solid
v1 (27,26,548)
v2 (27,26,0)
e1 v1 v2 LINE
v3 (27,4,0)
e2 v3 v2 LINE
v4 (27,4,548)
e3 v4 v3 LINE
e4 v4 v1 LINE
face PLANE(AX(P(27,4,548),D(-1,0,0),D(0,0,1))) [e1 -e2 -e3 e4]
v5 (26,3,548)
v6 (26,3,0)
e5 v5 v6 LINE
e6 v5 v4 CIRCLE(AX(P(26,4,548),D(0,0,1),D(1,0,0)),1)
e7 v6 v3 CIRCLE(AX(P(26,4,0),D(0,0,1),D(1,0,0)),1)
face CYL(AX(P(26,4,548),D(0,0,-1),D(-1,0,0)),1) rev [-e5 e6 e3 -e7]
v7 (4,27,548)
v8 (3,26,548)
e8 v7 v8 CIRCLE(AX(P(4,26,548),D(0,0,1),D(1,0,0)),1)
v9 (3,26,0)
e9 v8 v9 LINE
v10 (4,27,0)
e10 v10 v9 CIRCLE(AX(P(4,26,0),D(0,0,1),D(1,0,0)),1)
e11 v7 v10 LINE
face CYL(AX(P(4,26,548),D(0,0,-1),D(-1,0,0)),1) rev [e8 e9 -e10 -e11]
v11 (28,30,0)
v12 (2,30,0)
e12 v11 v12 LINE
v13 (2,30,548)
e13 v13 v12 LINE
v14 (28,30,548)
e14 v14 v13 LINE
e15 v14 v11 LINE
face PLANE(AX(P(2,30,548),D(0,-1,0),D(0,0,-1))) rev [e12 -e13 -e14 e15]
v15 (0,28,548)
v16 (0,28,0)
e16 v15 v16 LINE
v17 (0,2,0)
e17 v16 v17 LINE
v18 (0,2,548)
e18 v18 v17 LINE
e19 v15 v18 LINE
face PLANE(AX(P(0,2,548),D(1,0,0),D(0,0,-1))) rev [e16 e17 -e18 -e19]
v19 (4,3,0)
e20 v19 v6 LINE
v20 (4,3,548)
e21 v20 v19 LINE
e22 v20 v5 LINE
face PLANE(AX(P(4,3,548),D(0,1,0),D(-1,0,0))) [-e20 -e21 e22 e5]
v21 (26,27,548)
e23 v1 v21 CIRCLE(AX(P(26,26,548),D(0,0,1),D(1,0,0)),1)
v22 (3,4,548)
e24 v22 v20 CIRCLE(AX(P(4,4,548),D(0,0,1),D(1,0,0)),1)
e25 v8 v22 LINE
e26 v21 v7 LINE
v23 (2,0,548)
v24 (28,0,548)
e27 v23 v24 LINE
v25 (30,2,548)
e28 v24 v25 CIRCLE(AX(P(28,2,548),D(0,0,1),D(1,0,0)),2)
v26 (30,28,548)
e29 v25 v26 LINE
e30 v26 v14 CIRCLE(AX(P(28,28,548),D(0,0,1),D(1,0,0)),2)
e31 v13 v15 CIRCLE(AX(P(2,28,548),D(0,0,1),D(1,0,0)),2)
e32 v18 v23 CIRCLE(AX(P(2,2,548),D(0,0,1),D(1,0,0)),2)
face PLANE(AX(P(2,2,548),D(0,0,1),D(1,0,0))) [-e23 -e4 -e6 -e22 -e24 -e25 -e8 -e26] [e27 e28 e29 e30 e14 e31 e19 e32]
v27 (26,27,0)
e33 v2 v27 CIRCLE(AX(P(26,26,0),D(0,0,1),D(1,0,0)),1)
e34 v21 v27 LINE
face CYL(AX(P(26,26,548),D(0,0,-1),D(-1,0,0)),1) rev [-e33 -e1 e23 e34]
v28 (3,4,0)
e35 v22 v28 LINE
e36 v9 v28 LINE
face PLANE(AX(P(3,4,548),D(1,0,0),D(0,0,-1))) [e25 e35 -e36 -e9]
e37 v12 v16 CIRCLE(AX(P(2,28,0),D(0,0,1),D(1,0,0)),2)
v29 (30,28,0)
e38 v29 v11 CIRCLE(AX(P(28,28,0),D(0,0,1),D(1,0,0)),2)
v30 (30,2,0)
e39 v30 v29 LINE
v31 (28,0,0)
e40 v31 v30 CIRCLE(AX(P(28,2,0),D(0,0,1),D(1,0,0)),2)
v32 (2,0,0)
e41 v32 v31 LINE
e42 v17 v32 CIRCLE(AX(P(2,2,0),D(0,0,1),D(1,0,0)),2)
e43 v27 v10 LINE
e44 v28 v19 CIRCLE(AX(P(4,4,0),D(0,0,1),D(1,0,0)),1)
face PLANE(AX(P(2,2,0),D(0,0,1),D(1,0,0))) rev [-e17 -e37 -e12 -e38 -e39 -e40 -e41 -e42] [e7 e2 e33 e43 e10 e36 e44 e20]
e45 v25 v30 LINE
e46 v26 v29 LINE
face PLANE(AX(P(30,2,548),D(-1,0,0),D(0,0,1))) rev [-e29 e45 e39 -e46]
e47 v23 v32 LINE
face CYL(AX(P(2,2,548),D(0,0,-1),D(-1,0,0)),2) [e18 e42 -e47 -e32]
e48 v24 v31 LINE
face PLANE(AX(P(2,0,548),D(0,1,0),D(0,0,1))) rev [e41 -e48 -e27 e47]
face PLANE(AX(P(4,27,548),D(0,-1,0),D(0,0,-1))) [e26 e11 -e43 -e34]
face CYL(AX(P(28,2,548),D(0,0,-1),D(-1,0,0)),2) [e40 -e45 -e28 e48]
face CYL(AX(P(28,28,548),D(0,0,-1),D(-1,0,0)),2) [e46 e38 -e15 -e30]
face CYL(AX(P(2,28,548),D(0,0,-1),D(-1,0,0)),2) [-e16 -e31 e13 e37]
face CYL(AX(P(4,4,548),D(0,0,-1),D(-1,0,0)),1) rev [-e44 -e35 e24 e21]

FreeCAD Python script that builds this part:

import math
import FreeCAD as App
import Part
import Sketcher
from FreeCAD import Vector
Q = App.Units.Quantity

doc = App.newDocument("Part")
body = doc.addObject("PartDesign::Body", "Body")

# Sketch on XY plane
sketch1 = body.newObject("Sketcher::SketchObject", "Sketch")
sketch1.AttachmentSupport = (doc.getObject("XY_Plane"), [""])
sketch1.MapMode = "FlatFace"
sketch1.addGeometry([
    Part.LineSegment(Vector(2, 0, 0), Vector(28, 0, 0)),  # 0
    Part.ArcOfCircle(Part.Circle(Vector(28, 2, 0), Vector(0, 0, 1), 2), math.radians(-90), math.radians(0)),  # 1
    Part.LineSegment(Vector(30, 2, 0), Vector(30, 28, 0)),  # 2
    Part.ArcOfCircle(Part.Circle(Vector(28, 28, 0), Vector(0, 0, 1), 2), math.radians(0), math.radians(90)),  # 3
    Part.LineSegment(Vector(28, 30, 0), Vector(2, 30, 0)),  # 4
    Part.ArcOfCircle(Part.Circle(Vector(2, 28, 0), Vector(0, 0, 1), 2), math.radians(90), math.radians(180)),  # 5
    Part.LineSegment(Vector(0, 28, 0), Vector(0, 2, 0)),  # 6
    Part.ArcOfCircle(Part.Circle(Vector(2, 2, 0), Vector(0, 0, 1), 2), math.radians(-180), math.radians(-90)),  # 7
    Part.LineSegment(Vector(26, 3, 0), Vector(4, 3, 0)),  # 8
    Part.ArcOfCircle(Part.Circle(Vector(4, 4, 0), Vector(0, 0, 1), 1), math.radians(-180), math.radians(-90)),  # 9
    Part.LineSegment(Vector(3, 4, 0), Vector(3, 26, 0)),  # 10
    Part.ArcOfCircle(Part.Circle(Vector(4, 26, 0), Vector(0, 0, 1), 1), math.radians(90), math.radians(180)),  # 11
    Part.LineSegment(Vector(4, 27, 0), Vector(26, 27, 0)),  # 12
    Part.ArcOfCircle(Part.Circle(Vector(26, 26, 0), Vector(0, 0, 1), 1), math.radians(0), math.radians(90)),  # 13
    Part.LineSegment(Vector(27, 26, 0), Vector(27, 4, 0)),  # 14
    Part.ArcOfCircle(Part.Circle(Vector(26, 4, 0), Vector(0, 0, 1), 1), math.radians(-90), math.radians(0)),  # 15
], False)
sketch1.addConstraint([
    Sketcher.Constraint("Tangent", 0, 2, 1, 1),
    Sketcher.Constraint("Tangent", 1, 2, 2, 1),
    Sketcher.Constraint("Tangent", 2, 2, 3, 1),
    Sketcher.Constraint("Tangent", 3, 2, 4, 1),
    Sketcher.Constraint("Tangent", 4, 2, 5, 1),
    Sketcher.Constraint("Tangent", 5, 2, 6, 1),
    Sketcher.Constraint("Tangent", 6, 2, 7, 1),
    Sketcher.Constraint("Tangent", 7, 2, 0, 1),
    Sketcher.Constraint("Tangent", 8, 2, 9, 2),
    Sketcher.Constraint("Tangent", 9, 1, 10, 1),
    Sketcher.Constraint("Tangent", 10, 2, 11, 2),
    Sketcher.Constraint("Tangent", 11, 1, 12, 1),
    Sketcher.Constraint("Tangent", 12, 2, 13, 2),
    Sketcher.Constraint("Tangent", 13, 1, 14, 1),
    Sketcher.Constraint("Tangent", 14, 2, 15, 2),
    Sketcher.Constraint("Tangent", 15, 1, 8, 1),
    Sketcher.Constraint("Horizontal", 0),
    Sketcher.Constraint("Vertical", 2),
    Sketcher.Constraint("Horizontal", 4),
    Sketcher.Constraint("Vertical", 6),
    Sketcher.Constraint("Horizontal", 8),
    Sketcher.Constraint("Vertical", 10),
    Sketcher.Constraint("Horizontal", 12),
    Sketcher.Constraint("Vertical", 14),
    Sketcher.Constraint("Equal", 1, 3),
    Sketcher.Constraint("Equal", 3, 5),
    Sketcher.Constraint("Equal", 5, 7),
    Sketcher.Constraint("Equal", 9, 11),
    Sketcher.Constraint("Equal", 11, 13),
    Sketcher.Constraint("Equal", 13, 15),
    Sketcher.Constraint("PointOnObject", 0, 2, -1),
    Sketcher.Constraint("PointOnObject", 5, 2, -2),
    Sketcher.Constraint("Equal", 4, 2),
    Sketcher.Constraint("Equal", 12, 10),
    Sketcher.Constraint("Radius", 1, Q("2 mm")),
    Sketcher.Constraint("Radius", 9, Q("1 mm")),
    Sketcher.Constraint("DistanceX", 0, 1, 0, 2, Q("26 mm")),
    Sketcher.Constraint("DistanceX", 8, 2, 8, 1, Q("22 mm")),
    Sketcher.Constraint("DistanceX", -1, 1, 9, 3, Q("4 mm")),
    Sketcher.Constraint("DistanceY", -1, 1, 9, 3, Q("4 mm")),
])
pad1 = body.newObject("PartDesign::Pad", "Pad")
pad1.Profile = sketch1
pad1.Length = 548

doc.recompute()
